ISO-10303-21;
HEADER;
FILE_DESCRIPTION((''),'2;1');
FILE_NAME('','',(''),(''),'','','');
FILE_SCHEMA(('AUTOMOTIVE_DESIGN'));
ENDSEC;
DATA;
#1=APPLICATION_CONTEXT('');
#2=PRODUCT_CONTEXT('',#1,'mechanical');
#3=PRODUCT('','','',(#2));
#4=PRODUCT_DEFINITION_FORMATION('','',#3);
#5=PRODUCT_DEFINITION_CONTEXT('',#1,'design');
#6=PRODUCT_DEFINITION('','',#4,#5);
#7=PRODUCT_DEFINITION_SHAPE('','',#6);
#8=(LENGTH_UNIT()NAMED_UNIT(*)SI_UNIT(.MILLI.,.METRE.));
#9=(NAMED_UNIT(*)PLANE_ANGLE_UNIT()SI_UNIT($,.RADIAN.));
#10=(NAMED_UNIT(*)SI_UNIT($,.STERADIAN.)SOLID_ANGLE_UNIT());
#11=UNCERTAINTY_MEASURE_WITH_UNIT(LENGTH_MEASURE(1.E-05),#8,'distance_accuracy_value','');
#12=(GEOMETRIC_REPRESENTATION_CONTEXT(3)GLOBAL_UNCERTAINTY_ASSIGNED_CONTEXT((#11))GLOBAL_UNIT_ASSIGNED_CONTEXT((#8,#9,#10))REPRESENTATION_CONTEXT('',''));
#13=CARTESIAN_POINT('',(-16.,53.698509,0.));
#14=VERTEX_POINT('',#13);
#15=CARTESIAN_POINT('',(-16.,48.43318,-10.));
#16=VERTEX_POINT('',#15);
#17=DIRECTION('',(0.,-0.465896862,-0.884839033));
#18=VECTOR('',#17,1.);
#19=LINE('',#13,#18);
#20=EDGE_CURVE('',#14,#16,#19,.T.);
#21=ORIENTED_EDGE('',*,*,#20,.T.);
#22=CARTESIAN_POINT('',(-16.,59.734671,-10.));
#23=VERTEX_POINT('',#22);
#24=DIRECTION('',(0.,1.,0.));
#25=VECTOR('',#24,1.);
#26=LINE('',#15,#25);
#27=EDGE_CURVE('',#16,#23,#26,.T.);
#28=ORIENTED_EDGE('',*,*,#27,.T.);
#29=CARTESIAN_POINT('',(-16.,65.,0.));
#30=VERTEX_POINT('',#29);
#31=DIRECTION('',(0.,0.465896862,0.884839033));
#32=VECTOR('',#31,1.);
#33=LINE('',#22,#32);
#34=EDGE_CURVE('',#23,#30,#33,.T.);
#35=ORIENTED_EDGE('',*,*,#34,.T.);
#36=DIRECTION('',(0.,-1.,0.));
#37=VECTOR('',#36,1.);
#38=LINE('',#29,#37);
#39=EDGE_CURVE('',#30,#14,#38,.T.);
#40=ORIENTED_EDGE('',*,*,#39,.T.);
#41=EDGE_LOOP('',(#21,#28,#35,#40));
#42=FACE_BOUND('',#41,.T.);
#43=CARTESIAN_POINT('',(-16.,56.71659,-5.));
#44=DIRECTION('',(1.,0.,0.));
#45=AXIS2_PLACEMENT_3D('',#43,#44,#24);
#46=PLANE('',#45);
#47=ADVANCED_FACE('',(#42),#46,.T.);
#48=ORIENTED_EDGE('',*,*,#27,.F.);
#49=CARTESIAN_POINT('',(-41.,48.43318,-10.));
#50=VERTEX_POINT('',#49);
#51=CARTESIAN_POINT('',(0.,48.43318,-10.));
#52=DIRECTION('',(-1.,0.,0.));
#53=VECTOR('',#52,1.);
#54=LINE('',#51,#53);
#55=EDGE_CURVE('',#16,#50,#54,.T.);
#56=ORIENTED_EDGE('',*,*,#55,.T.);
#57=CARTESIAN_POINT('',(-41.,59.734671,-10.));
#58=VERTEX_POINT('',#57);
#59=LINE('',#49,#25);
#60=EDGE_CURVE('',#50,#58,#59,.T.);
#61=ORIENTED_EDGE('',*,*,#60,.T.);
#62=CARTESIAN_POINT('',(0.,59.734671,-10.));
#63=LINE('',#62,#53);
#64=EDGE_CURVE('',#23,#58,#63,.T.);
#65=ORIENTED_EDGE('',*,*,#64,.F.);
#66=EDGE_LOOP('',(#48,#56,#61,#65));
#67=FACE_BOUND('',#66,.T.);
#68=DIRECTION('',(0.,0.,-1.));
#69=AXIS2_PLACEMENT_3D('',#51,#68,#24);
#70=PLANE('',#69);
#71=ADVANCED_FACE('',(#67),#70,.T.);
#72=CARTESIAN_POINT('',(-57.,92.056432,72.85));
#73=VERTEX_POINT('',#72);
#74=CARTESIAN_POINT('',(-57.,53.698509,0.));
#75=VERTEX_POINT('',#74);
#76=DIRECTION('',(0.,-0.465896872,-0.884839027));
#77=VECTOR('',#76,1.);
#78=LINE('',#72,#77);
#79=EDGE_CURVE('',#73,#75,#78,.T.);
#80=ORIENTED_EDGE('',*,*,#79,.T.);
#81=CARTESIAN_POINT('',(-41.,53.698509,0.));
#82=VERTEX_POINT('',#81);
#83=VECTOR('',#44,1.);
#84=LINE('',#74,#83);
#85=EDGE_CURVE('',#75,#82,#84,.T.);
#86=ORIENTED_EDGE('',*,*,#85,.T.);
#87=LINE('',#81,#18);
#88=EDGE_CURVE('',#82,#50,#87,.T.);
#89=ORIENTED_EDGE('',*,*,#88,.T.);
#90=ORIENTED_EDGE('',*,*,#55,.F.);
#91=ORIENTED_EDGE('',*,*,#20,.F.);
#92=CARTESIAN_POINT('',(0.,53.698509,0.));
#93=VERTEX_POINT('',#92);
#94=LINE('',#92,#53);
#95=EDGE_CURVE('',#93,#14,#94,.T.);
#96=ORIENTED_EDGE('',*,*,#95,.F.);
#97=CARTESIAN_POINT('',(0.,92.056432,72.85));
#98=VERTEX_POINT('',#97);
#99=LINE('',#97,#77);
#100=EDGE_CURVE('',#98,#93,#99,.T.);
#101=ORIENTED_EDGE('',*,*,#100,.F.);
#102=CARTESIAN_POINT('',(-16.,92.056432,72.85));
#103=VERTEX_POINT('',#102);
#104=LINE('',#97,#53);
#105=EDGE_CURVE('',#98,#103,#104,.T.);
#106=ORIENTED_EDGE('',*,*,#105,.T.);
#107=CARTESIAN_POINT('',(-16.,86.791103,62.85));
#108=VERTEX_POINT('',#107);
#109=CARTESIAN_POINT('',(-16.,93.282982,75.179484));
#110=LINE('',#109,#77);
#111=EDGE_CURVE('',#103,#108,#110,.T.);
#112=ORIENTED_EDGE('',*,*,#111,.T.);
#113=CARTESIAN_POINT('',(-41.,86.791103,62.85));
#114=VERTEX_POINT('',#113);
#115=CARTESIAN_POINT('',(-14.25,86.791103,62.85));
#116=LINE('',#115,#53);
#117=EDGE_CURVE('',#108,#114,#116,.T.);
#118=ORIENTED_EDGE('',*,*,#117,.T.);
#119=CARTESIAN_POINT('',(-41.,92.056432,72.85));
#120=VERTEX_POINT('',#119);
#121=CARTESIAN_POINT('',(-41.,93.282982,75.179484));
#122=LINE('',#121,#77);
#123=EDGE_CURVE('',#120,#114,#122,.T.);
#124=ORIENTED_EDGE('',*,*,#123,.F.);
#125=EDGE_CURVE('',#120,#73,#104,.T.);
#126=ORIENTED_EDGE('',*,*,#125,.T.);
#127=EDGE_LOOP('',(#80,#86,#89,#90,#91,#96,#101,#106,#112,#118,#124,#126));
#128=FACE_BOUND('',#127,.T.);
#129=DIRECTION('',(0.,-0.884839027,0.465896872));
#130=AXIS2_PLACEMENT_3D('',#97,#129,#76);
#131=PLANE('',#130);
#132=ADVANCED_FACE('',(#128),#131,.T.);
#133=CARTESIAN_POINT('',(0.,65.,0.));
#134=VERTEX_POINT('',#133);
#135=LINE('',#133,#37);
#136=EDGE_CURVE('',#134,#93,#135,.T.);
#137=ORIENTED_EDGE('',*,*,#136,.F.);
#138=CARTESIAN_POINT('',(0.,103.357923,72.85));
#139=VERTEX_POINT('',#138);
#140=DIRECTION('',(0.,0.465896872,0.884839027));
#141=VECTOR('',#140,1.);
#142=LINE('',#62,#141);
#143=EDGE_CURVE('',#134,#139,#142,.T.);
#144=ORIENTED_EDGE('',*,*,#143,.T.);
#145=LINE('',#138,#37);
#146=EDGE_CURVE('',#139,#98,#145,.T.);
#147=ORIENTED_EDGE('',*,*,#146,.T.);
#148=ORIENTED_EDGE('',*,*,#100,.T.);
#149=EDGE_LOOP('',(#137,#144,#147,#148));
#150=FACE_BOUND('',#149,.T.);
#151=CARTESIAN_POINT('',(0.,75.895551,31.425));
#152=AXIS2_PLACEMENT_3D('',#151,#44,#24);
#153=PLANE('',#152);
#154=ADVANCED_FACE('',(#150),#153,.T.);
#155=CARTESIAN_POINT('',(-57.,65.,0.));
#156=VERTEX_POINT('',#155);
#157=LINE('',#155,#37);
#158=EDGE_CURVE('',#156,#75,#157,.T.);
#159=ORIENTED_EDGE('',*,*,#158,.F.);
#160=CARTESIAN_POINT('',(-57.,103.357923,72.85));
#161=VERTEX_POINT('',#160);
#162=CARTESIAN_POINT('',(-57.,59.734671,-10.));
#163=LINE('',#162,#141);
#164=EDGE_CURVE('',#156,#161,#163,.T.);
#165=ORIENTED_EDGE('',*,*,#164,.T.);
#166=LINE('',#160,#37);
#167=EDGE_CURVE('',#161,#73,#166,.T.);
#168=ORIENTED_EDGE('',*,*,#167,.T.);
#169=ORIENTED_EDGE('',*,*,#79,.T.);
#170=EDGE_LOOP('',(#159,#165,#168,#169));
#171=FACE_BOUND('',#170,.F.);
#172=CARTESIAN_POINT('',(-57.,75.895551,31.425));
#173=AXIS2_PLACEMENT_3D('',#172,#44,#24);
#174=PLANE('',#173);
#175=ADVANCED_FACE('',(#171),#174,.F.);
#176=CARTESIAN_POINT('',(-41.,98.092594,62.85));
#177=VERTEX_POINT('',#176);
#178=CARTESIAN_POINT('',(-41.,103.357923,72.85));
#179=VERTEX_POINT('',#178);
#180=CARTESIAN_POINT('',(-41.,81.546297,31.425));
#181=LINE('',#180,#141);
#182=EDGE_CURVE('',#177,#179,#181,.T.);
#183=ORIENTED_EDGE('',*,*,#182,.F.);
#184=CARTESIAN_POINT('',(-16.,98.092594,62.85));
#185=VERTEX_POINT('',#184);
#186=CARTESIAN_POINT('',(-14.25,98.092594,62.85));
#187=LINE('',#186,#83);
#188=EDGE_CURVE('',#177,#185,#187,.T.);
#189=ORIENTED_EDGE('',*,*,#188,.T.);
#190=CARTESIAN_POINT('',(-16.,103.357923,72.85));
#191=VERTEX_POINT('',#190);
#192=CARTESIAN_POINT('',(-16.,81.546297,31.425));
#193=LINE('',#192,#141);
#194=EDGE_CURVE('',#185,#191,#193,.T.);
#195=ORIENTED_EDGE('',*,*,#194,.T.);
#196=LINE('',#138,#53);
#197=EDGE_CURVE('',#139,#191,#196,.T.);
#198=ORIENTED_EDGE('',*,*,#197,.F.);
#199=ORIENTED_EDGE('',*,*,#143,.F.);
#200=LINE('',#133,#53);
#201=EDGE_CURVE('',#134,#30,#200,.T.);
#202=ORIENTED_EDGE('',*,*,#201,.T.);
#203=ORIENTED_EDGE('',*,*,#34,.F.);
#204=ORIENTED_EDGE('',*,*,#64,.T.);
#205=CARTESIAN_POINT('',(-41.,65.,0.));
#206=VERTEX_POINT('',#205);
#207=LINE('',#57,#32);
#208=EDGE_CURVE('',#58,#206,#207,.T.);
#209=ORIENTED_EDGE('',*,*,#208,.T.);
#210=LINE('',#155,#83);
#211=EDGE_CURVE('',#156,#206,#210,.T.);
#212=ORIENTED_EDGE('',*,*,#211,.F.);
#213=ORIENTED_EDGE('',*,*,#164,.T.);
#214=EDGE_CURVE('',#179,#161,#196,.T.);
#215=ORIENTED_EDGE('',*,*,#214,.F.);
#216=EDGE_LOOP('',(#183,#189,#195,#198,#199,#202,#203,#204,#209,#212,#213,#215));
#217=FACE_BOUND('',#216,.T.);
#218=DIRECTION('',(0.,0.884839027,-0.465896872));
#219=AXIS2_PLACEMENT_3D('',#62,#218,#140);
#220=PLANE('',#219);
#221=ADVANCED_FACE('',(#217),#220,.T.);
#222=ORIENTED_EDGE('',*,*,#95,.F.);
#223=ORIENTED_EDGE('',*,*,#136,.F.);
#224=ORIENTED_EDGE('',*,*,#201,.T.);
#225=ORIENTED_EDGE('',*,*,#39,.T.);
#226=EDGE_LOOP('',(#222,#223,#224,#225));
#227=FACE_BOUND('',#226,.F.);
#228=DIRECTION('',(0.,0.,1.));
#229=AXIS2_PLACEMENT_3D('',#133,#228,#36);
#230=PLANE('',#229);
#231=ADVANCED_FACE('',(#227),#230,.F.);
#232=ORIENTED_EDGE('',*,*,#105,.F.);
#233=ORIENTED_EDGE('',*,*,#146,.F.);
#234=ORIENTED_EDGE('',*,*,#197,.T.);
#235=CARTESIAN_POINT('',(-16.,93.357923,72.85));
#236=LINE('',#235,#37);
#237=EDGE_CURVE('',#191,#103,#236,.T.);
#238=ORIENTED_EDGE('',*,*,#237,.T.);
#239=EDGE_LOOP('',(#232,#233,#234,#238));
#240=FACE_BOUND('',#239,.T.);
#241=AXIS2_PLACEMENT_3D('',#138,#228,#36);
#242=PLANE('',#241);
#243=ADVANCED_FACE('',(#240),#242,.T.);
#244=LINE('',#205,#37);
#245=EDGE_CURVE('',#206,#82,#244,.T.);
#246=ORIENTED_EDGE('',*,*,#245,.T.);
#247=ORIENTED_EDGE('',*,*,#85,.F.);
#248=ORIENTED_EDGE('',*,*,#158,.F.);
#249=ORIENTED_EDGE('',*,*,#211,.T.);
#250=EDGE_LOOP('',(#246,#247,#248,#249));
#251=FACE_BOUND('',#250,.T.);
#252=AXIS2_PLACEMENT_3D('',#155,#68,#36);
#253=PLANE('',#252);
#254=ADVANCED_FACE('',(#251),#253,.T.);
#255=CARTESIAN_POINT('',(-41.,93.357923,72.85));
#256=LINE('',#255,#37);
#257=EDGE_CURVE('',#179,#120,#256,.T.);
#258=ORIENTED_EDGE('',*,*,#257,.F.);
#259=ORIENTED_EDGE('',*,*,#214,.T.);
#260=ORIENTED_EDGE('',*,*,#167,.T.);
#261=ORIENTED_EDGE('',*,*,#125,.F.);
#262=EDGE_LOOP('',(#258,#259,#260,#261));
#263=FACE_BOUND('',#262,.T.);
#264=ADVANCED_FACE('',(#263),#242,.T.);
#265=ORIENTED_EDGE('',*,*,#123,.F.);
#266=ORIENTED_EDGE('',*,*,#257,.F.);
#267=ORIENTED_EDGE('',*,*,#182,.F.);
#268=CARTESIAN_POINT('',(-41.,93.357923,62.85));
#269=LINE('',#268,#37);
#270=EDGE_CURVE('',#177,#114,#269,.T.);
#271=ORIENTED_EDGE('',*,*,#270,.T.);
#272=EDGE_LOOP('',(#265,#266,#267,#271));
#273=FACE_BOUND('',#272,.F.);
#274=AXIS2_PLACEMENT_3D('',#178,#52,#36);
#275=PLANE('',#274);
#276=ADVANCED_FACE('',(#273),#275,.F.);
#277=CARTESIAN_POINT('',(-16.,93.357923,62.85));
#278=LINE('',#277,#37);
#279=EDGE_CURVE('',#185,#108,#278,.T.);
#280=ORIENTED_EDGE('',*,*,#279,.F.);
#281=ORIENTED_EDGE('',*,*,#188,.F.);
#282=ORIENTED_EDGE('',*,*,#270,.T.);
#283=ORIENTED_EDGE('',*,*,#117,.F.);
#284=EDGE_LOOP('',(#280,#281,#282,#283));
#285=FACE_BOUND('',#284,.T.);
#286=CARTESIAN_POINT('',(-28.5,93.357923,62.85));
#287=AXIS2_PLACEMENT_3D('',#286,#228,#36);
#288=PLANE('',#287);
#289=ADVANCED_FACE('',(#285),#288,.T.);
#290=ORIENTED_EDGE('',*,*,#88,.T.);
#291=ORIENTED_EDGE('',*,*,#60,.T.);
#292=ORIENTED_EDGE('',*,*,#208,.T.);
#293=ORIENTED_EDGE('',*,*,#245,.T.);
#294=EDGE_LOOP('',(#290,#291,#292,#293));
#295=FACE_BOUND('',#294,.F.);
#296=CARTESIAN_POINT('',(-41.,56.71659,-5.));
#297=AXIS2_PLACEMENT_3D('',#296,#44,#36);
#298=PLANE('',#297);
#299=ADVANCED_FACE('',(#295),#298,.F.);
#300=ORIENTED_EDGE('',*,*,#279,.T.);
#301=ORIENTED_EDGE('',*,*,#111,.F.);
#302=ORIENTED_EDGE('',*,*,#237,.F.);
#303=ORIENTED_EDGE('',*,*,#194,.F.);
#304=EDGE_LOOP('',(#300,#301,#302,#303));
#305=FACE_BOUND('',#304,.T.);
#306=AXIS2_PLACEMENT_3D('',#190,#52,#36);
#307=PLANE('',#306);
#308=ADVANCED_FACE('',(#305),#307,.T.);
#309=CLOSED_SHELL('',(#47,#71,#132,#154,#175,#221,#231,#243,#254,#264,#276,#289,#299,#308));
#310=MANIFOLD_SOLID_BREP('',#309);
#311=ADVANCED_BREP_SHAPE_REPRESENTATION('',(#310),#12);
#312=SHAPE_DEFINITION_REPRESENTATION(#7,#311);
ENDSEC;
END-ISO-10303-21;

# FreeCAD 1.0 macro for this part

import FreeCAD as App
import Part
import Sketcher

V = App.Vector

doc = App.newDocument("Part")
body = doc.addObject("PartDesign::Body", "Body")

sketch1 = body.newObject("Sketcher::SketchObject", "Sketch")
sketch1.AttachmentSupport = (doc.getObject("YZ_Plane"), [""])
sketch1.MapMode = "FlatFace"
sketch1.addGeometry(Part.LineSegment(V(55, -10, 0), V(98, 73, 0)), False)
sketch1.addGeometry(Part.LineSegment(V(98, 73, 0), V(87, 73, 0)), False)
sketch1.addGeometry(Part.LineSegment(V(87, 73, 0), V(43, -10, 0)), False)
sketch1.addGeometry(Part.LineSegment(V(43, -10, 0), V(55, -10, 0)), False)
sketch1.addConstraint(Sketcher.Constraint("Coincident", 0, 2, 1, 1))
sketch1.addConstraint(Sketcher.Constraint("Coincident", 1, 2, 2, 1))
sketch1.addConstraint(Sketcher.Constraint("Coincident", 2, 2, 3, 1))
sketch1.addConstraint(Sketcher.Constraint("Coincident", 3, 2, 0, 1))
sketch1.addConstraint(Sketcher.Constraint("Horizontal", 1))
sketch1.addConstraint(Sketcher.Constraint("Horizontal", 3))
sketch1.addConstraint(Sketcher.Constraint("Parallel", 0, 2))
sketch1.addConstraint(Sketcher.Constraint("DistanceY", 2, 2, -1, 1, 10.0))
sketch1.addConstraint(Sketcher.Constraint("DistanceY", -1, 1, 0, 2, 72.85))
sketch1.addConstraint(Sketcher.Constraint("DistanceX", 1, 2, 1, 1, 11.301491))
sketch1.addConstraint(Sketcher.Constraint("Distance", 0, 93.63285))
sketch1.addConstraint(Sketcher.Constraint("DistanceX", -1, 1, 1, 2, 87.056432))
pad1 = body.newObject("PartDesign::Pad", "Pad")
pad1.Profile = sketch1
pad1.Length = 57
pad1.Reversed = True

sketch2 = body.newObject("Sketcher::SketchObject", "Sketch001")
sketch2.AttachmentSupport = (doc.getObject("YZ_Plane"), [""])
sketch2.MapMode = "FlatFace"
sketch2.addGeometry(Part.LineSegment(V(43, -10, 0), V(55, -10, 0)), False)
sketch2.addGeometry(Part.LineSegment(V(55, -10, 0), V(60, 0, 0)), False)
sketch2.addGeometry(Part.LineSegment(V(60, 0, 0), V(49, 0, 0)), False)
sketch2.addGeometry(Part.LineSegment(V(49, 0, 0), V(43, -10, 0)), False)
sketch2.addConstraint(Sketcher.Constraint("Coincident", 0, 2, 1, 1))
sketch2.addConstraint(Sketcher.Constraint("Coincident", 1, 2, 2, 1))
sketch2.addConstraint(Sketcher.Constraint("Coincident", 2, 2, 3, 1))
sketch2.addConstraint(Sketcher.Constraint("Coincident", 3, 2, 0, 1))
sketch2.addConstraint(Sketcher.Constraint("Horizontal", 0))
sketch2.addConstraint(Sketcher.Constraint("Horizontal", 2))
sketch2.addConstraint(Sketcher.Constraint("PointOnObject", 1, 2, -1))
sketch2.addConstraint(Sketcher.Constraint("Parallel", 1, 3))
sketch2.addConstraint(Sketcher.Constraint("DistanceY", 0, 2, -1, 1, 10.0))
sketch2.addConstraint(Sketcher.Constraint("DistanceX", -1, 1, 1, 2, 60.0))
sketch2.addConstraint(Sketcher.Constraint("DistanceX", 0, 1, 0, 2, 11.301491))
sketch2.addConstraint(Sketcher.Constraint("Distance", 1, 11.301491))
pocket1 = body.newObject("PartDesign::Pocket", "Pocket")
pocket1.Profile = sketch2
pocket1.Length = 16

sketch3 = body.newObject("Sketcher::SketchObject", "Sketch002")
sketch3.AttachmentSupport = (doc.getObject("YZ_Plane"), [""])
sketch3.MapMode = "FlatFace"
sketch3.AttachmentOffset = App.Placement(V(0, 0, -57), App.Rotation())
sketch3.addGeometry(Part.LineSegment(V(55, -10, 0), V(43, -10, 0)), False)
sketch3.addGeometry(Part.LineSegment(V(43, -10, 0), V(49, 0, 0)), False)
sketch3.addGeometry(Part.LineSegment(V(49, 0, 0), V(60, 0, 0)), False)
sketch3.addGeometry(Part.LineSegment(V(60, 0, 0), V(55, -10, 0)), False)
sketch3.addConstraint(Sketcher.Constraint("Coincident", 0, 2, 1, 1))
sketch3.addConstraint(Sketcher.Constraint("Coincident", 1, 2, 2, 1))
sketch3.addConstraint(Sketcher.Constraint("Coincident", 2, 2, 3, 1))
sketch3.addConstraint(Sketcher.Constraint("Coincident", 3, 2, 0, 1))
sketch3.addConstraint(Sketcher.Constraint("Horizontal", 0))
sketch3.addConstraint(Sketcher.Constraint("Horizontal", 2))
sketch3.addConstraint(Sketcher.Constraint("PointOnObject", 1, 2, -1))
sketch3.addConstraint(Sketcher.Constraint("Parallel", 1, 3))
sketch3.addConstraint(Sketcher.Constraint("DistanceY", 0, 2, -1, 1, 10.0))
sketch3.addConstraint(Sketcher.Constraint("DistanceX", -1, 1, 2, 2, 60.0))
sketch3.addConstraint(Sketcher.Constraint("DistanceX", 0, 2, 0, 1, 11.301491))
sketch3.addConstraint(Sketcher.Constraint("Distance", 1, 11.301491))
pocket2 = body.newObject("PartDesign::Pocket", "Pocket001")
pocket2.Profile = sketch3
pocket2.Length = 16
pocket2.Reversed = True

sketch4 = body.newObject("Sketcher::SketchObject", "Sketch003")
sketch4.AttachmentSupport = (doc.getObject("XY_Plane"), [""])
sketch4.MapMode = "FlatFace"
sketch4.AttachmentOffset = App.Placement(V(0, 0, 72.85), App.Rotation())
sketch4.addGeometry(Part.LineSegment(V(-16, 98, 0), V(-41, 98, 0)), False)
sketch4.addGeometry(Part.LineSegment(V(-41, 98, 0), V(-41, 78, 0)), False)
sketch4.addGeometry(Part.LineSegment(V(-41, 78, 0), V(-16, 78, 0)), False)
sketch4.addGeometry(Part.LineSegment(V(-16, 78, 0), V(-16, 98, 0)), False)
sketch4.addConstraint(Sketcher.Constraint("Coincident", 0, 2, 1, 1))
sketch4.addConstraint(Sketcher.Constraint("Coincident", 1, 2, 2, 1))
sketch4.addConstraint(Sketcher.Constraint("Coincident", 2, 2, 3, 1))
sketch4.addConstraint(Sketcher.Constraint("Coincident", 3, 2, 0, 1))
sketch4.addConstraint(Sketcher.Constraint("Horizontal", 0))
sketch4.addConstraint(Sketcher.Constraint("Vertical", 1))
sketch4.addConstraint(Sketcher.Constraint("Horizontal", 2))
sketch4.addConstraint(Sketcher.Constraint("Vertical", 3))
sketch4.addConstraint(Sketcher.Constraint("DistanceX", 0, 2, 0, 1, 25.0))
sketch4.addConstraint(Sketcher.Constraint("DistanceY", 1, 2, 1, 1, 20.0))
sketch4.addConstraint(Sketcher.Constraint("DistanceX", 0, 2, -1, 1, 41.0))
sketch4.addConstraint(Sketcher.Constraint("DistanceY", -1, 1, 0, 2, 98.357923))
pocket3 = body.newObject("PartDesign::Pocket", "Pocket002")
pocket3.Profile = sketch4
pocket3.Length = 10
body2 = doc.addObject("PartDesign::Body", "Body001")
doc.recompute()

body.Placement = App.Placement(V(0, 5, 0), App.Rotation(V(0, 0, 1), 0))
boolean = body2.newObject("PartDesign::Boolean", "Boolean")
boolean.Type = "Fuse"
boolean.addObjects([body])

doc.recompute()
